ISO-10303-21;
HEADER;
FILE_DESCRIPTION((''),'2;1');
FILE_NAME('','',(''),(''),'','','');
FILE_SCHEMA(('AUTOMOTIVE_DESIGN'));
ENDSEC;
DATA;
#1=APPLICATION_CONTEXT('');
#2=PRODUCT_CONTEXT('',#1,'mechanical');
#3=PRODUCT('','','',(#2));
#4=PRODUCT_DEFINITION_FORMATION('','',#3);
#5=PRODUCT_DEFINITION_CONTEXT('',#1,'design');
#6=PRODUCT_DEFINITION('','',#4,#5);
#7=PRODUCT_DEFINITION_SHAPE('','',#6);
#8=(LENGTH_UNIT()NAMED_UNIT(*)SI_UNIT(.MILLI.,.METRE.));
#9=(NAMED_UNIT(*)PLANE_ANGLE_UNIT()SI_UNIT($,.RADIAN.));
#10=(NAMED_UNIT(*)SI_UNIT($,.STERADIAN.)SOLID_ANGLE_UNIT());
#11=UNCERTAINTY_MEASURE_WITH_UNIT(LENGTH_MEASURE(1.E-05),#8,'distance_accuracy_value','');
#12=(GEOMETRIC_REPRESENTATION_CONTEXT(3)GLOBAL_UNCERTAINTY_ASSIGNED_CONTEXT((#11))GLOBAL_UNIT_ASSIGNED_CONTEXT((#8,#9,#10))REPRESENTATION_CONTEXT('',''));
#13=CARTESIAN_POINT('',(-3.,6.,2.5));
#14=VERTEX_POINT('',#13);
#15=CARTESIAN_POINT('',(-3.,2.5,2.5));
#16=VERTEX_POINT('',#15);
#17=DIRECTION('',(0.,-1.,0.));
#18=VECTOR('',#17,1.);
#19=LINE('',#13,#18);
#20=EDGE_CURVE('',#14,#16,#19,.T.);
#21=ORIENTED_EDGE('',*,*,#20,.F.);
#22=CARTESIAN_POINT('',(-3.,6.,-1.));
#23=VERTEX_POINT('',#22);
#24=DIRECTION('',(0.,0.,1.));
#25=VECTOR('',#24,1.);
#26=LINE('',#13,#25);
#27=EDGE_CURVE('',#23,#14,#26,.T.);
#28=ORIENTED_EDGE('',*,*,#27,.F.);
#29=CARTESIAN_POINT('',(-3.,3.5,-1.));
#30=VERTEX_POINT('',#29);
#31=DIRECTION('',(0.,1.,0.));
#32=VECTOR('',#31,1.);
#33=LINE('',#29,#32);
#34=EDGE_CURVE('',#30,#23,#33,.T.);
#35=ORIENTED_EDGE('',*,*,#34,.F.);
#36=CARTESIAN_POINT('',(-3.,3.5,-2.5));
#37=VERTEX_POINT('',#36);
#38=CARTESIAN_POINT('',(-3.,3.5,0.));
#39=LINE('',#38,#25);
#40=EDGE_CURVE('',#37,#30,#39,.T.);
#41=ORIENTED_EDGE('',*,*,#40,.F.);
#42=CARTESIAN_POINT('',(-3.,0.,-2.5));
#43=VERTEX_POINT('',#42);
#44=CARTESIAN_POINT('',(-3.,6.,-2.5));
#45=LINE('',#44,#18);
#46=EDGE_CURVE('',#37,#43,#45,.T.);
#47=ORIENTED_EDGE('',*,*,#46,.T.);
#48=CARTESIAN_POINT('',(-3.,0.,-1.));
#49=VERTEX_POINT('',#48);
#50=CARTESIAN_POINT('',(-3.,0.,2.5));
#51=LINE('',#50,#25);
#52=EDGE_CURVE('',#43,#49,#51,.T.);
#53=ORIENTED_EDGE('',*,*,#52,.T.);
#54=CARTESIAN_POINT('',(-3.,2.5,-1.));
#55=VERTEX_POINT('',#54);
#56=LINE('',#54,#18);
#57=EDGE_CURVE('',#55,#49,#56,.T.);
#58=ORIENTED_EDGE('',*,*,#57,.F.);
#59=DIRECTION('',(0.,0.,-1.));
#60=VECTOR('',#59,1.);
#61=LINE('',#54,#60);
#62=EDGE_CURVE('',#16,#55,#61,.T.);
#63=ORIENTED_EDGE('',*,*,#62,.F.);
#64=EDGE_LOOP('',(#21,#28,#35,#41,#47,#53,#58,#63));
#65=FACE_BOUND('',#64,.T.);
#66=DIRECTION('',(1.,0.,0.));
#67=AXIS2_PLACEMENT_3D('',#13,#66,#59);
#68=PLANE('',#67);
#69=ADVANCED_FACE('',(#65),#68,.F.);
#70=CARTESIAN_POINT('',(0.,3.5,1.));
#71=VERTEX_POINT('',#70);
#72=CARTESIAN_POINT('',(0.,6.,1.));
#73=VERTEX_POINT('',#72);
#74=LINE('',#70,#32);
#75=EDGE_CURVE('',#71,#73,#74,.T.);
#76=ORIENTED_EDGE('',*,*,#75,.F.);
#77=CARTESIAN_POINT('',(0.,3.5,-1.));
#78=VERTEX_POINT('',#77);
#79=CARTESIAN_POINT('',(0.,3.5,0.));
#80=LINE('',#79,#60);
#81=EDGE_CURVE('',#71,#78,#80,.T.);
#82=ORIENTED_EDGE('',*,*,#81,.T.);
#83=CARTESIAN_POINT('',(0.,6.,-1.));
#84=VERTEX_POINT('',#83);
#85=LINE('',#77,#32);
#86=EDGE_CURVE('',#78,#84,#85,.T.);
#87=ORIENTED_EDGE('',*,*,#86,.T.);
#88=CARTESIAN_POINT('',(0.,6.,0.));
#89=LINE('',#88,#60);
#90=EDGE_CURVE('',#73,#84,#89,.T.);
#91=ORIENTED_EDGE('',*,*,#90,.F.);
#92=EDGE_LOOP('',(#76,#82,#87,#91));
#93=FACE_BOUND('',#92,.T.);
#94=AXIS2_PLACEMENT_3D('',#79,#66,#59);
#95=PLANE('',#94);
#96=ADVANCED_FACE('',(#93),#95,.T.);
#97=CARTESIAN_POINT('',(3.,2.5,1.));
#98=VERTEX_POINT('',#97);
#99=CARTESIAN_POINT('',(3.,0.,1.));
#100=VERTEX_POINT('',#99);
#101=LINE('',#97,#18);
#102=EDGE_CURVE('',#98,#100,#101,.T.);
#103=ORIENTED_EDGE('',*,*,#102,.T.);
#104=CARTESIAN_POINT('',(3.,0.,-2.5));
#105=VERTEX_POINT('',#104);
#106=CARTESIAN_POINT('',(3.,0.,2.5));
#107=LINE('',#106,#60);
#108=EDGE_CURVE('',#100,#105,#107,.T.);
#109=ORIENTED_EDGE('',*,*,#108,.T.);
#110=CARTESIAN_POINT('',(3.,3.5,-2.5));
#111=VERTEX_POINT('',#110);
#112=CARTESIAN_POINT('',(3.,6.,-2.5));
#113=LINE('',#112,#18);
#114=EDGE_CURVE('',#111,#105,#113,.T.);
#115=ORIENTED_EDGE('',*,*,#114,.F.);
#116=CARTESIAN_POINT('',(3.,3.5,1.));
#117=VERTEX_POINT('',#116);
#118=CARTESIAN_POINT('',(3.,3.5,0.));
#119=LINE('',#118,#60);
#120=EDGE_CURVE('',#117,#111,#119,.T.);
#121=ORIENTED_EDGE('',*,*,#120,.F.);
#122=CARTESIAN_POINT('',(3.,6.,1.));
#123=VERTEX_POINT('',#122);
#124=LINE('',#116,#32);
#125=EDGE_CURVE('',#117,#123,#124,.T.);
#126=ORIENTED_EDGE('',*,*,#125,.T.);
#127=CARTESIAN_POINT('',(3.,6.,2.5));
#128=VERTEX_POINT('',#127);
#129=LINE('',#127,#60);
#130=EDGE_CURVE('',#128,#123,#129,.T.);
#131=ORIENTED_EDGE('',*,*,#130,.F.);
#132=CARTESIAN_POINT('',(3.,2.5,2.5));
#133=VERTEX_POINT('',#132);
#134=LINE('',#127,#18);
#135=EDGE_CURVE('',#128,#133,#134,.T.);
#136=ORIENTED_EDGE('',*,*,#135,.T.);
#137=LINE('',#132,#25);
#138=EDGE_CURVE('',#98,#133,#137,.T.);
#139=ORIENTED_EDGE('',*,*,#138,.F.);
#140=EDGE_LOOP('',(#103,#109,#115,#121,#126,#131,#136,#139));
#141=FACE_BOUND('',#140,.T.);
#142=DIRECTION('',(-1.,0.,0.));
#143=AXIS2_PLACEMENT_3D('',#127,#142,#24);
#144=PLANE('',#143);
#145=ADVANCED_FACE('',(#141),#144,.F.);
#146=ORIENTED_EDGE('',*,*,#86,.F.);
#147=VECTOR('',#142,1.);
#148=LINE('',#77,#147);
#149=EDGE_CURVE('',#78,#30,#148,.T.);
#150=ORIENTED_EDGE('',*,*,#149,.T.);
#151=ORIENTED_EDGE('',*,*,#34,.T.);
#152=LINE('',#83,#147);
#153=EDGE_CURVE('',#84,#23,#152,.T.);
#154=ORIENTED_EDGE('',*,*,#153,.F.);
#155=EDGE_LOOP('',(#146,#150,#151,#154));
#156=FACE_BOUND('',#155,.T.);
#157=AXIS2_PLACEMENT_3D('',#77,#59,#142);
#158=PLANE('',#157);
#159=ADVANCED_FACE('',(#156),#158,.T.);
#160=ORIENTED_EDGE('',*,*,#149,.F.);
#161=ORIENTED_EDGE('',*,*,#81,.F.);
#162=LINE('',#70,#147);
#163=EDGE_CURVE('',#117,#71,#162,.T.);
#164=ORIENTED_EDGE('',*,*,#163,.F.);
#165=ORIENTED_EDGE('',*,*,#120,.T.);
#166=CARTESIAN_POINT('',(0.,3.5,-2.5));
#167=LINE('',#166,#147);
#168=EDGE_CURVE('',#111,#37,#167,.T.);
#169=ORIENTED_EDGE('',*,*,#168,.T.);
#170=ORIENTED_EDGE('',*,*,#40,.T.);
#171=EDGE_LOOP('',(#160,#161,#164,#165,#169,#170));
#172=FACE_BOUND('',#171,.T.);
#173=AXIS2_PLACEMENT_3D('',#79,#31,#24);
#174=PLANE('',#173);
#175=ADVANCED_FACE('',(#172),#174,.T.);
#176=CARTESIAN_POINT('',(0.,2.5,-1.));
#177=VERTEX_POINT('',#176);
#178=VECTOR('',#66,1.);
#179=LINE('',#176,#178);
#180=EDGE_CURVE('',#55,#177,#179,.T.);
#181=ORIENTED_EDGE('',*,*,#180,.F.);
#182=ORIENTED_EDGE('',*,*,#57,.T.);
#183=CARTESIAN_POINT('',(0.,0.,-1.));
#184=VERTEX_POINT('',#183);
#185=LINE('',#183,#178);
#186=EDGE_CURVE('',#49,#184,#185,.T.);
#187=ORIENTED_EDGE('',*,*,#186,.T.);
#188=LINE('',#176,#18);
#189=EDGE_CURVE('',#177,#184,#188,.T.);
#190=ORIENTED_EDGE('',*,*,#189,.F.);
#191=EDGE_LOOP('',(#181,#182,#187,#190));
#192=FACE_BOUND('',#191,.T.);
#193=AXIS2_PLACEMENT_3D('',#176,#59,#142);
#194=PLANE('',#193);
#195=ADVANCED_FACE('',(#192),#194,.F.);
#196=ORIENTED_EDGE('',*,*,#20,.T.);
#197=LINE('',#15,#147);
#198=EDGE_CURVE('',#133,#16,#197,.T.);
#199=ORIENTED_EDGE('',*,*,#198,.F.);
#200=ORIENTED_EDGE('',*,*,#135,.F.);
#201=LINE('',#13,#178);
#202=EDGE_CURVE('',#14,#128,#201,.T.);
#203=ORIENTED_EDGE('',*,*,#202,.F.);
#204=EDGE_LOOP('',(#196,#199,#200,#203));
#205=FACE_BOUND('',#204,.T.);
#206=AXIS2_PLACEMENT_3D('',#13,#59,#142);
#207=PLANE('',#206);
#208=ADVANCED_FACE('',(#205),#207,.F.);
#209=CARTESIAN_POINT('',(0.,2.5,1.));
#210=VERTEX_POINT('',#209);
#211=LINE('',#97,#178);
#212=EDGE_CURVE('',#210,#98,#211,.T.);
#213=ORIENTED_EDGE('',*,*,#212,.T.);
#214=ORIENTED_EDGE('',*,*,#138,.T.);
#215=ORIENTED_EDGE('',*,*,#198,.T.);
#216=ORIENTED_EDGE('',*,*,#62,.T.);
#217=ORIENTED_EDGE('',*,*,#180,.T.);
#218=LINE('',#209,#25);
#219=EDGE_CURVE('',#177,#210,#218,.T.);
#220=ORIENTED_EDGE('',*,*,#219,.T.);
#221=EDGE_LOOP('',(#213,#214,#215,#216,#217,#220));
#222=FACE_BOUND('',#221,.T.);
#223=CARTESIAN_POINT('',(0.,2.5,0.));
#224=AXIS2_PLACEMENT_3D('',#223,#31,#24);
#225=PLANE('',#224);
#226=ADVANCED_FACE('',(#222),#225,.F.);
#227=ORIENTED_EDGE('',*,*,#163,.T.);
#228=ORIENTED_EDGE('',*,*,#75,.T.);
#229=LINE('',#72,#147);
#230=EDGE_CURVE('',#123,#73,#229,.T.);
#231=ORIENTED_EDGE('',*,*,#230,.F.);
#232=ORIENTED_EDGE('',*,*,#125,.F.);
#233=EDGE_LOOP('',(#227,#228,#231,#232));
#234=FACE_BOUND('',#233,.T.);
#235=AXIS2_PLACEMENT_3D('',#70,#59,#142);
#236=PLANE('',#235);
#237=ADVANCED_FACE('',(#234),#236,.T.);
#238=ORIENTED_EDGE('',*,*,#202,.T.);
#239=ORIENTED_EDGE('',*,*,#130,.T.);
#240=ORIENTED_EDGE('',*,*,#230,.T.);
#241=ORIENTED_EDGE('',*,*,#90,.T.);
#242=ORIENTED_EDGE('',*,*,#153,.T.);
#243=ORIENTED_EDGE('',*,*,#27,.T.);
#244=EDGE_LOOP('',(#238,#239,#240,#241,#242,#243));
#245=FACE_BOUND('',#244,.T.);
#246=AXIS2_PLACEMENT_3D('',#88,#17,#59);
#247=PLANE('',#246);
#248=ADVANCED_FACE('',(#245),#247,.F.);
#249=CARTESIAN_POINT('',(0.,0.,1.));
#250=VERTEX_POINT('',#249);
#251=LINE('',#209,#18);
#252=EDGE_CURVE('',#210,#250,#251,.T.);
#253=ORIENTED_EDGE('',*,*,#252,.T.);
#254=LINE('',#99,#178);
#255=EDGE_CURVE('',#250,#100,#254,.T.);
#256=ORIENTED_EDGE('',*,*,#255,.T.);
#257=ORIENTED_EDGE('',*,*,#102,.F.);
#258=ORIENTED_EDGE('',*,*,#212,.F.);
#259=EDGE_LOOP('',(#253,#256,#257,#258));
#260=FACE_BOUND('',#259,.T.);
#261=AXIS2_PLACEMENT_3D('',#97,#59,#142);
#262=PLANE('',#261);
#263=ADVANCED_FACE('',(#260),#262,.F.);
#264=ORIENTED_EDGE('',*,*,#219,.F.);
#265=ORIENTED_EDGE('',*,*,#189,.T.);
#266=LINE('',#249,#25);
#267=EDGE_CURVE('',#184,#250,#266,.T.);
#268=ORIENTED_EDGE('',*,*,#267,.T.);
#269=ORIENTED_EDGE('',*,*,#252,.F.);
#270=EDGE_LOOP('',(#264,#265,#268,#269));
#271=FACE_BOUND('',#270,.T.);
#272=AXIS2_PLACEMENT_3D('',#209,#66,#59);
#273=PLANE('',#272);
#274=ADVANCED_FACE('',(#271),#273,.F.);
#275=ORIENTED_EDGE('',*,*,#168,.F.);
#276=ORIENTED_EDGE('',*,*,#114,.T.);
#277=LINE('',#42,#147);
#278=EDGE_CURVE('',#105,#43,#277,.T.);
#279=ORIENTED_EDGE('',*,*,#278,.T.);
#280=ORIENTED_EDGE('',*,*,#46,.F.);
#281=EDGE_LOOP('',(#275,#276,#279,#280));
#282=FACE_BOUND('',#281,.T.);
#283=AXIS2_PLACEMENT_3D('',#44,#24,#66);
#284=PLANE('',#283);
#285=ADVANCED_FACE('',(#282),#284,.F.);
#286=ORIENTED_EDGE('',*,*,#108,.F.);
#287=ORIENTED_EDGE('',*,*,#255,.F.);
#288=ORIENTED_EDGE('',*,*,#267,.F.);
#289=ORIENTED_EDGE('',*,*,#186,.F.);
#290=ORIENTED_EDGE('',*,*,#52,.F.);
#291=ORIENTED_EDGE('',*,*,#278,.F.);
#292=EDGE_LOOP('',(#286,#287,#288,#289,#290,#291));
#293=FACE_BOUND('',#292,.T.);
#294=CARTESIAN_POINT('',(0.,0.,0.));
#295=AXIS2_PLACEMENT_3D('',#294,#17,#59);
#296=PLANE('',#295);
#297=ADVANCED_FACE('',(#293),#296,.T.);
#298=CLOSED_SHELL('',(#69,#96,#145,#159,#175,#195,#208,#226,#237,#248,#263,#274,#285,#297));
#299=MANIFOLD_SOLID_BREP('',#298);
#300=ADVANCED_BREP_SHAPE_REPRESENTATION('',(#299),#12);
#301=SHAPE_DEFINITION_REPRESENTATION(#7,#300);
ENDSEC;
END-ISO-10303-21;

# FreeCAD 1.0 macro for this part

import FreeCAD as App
import Part
import Sketcher

doc = App.newDocument("Part")
body = doc.addObject("PartDesign::Body", "Body")

sketch1 = body.newObject("Sketcher::SketchObject", "Sketch")
sketch1.AttachmentSupport = (doc.getObject("XZ_Plane"), [""])
sketch1.MapMode = "FlatFace"
sketch1.addGeometry([
    Part.LineSegment(App.Vector(-3, -2, 0), App.Vector(-3, 2, 0)),
    Part.LineSegment(App.Vector(-3, 2, 0), App.Vector(3, 2, 0)),
    Part.LineSegment(App.Vector(3, 2, 0), App.Vector(3, -2, 0)),
    Part.LineSegment(App.Vector(3, -2, 0), App.Vector(-3, -2, 0)),
], False)
sketch1.addConstraint([
    Sketcher.Constraint("Coincident", 0, 2, 1, 1),
    Sketcher.Constraint("Coincident", 1, 2, 2, 1),
    Sketcher.Constraint("Coincident", 2, 2, 3, 1),
    Sketcher.Constraint("Coincident", 3, 2, 0, 1),
    Sketcher.Constraint("Vertical", 0),
    Sketcher.Constraint("Horizontal", 1),
    Sketcher.Constraint("Vertical", 2),
    Sketcher.Constraint("Horizontal", 3),
    Sketcher.Constraint("Symmetric", 0, 2, 2, 2, -1, 1),
    Sketcher.Constraint("DistanceX", 1, 1, 1, 2, 6.0),
    Sketcher.Constraint("DistanceY", 0, 1, 0, 2, 5.0),
])
pad1 = body.newObject("PartDesign::Pad", "Pad")
pad1.Profile = sketch1
pad1.Length = 6
pad1.Reversed = True

sketch2 = body.newObject("Sketcher::SketchObject", "Sketch001")
sketch2.AttachmentSupport = (doc.getObject("XZ_Plane"), [""])
sketch2.MapMode = "FlatFace"
sketch2.AttachmentOffset = App.Placement(App.Vector(0, 0, -6), App.Rotation())
sketch2.addGeometry([
    Part.LineSegment(App.Vector(0, 1, 0), App.Vector(3, 1, 0)),
    Part.LineSegment(App.Vector(3, 1, 0), App.Vector(3, -2.5, 0)),
    Part.LineSegment(App.Vector(3, -2.5, 0), App.Vector(-3, -2.5, 0)),
    Part.LineSegment(App.Vector(-3, -2.5, 0), App.Vector(-3, -1, 0)),
    Part.LineSegment(App.Vector(-3, -1, 0), App.Vector(0, -1, 0)),
    Part.LineSegment(App.Vector(0, -1, 0), App.Vector(0, 1, 0)),
], False)
sketch2.addConstraint([
    Sketcher.Constraint("Coincident", 0, 2, 1, 1),
    Sketcher.Constraint("Coincident", 1, 2, 2, 1),
    Sketcher.Constraint("Coincident", 2, 2, 3, 1),
    Sketcher.Constraint("Coincident", 3, 2, 4, 1),
    Sketcher.Constraint("Coincident", 4, 2, 5, 1),
    Sketcher.Constraint("Coincident", 5, 2, 0, 1),
    Sketcher.Constraint("Horizontal", 0),
    Sketcher.Constraint("Vertical", 1),
    Sketcher.Constraint("Horizontal", 2),
    Sketcher.Constraint("Vertical", 3),
    Sketcher.Constraint("Horizontal", 4),
    Sketcher.Constraint("Vertical", 5),
    Sketcher.Constraint("Symmetric", 0, 2, 3, 2, -1, 1),
    Sketcher.Constraint("PointOnObject", 4, 2, -2),
    Sketcher.Constraint("DistanceX", 0, 1, 0, 2, 3.0),
    Sketcher.Constraint("DistanceY", 5, 1, 5, 2, 2.0),
    Sketcher.Constraint("DistanceY", 1, 2, 1, 1, 3.5),
])
pocket1 = body.newObject("PartDesign::Pocket", "Pocket")
pocket1.Profile = sketch2
pocket1.Length = 2.5
pocket1.Reversed = True

sketch3 = body.newObject("Sketcher::SketchObject", "Sketch002")
sketch3.AttachmentSupport = (doc.getObject("XZ_Plane"), [""])
sketch3.MapMode = "FlatFace"
sketch3.addGeometry([
    Part.LineSegment(App.Vector(0, 1, 0), App.Vector(3, 1, 0)),
    Part.LineSegment(App.Vector(3, 1, 0), App.Vector(3, 2.5, 0)),
    Part.LineSegment(App.Vector(3, 2.5, 0), App.Vector(-3, 2.5, 0)),
    Part.LineSegment(App.Vector(-3, 2.5, 0), App.Vector(-3, -1, 0)),
    Part.LineSegment(App.Vector(-3, -1, 0), App.Vector(0, -1, 0)),
    Part.LineSegment(App.Vector(0, -1, 0), App.Vector(0, 1, 0)),
], False)
sketch3.addConstraint([
    Sketcher.Constraint("Coincident", 0, 2, 1, 1),
    Sketcher.Constraint("Coincident", 1, 2, 2, 1),
    Sketcher.Constraint("Coincident", 2, 2, 3, 1),
    Sketcher.Constraint("Coincident", 3, 2, 4, 1),
    Sketcher.Constraint("Coincident", 4, 2, 5, 1),
    Sketcher.Constraint("Coincident", 5, 2, 0, 1),
    Sketcher.Constraint("Horizontal", 0),
    Sketcher.Constraint("Vertical", 1),
    Sketcher.Constraint("Horizontal", 2),
    Sketcher.Constraint("Vertical", 3),
    Sketcher.Constraint("Horizontal", 4),
    Sketcher.Constraint("Vertical", 5),
    Sketcher.Constraint("Symmetric", 0, 2, 3, 2, -1, 1),
    Sketcher.Constraint("PointOnObject", 4, 2, -2),
    Sketcher.Constraint("DistanceX", 0, 1, 0, 2, 3.0),
    Sketcher.Constraint("DistanceY", 5, 1, 5, 2, 2.0),
    Sketcher.Constraint("DistanceY", 1, 1, 1, 2, 1.5),
])
pocket2 = body.newObject("PartDesign::Pocket", "Pocket001")
pocket2.Profile = sketch3
pocket2.Length = 2.5

doc.recompute()
